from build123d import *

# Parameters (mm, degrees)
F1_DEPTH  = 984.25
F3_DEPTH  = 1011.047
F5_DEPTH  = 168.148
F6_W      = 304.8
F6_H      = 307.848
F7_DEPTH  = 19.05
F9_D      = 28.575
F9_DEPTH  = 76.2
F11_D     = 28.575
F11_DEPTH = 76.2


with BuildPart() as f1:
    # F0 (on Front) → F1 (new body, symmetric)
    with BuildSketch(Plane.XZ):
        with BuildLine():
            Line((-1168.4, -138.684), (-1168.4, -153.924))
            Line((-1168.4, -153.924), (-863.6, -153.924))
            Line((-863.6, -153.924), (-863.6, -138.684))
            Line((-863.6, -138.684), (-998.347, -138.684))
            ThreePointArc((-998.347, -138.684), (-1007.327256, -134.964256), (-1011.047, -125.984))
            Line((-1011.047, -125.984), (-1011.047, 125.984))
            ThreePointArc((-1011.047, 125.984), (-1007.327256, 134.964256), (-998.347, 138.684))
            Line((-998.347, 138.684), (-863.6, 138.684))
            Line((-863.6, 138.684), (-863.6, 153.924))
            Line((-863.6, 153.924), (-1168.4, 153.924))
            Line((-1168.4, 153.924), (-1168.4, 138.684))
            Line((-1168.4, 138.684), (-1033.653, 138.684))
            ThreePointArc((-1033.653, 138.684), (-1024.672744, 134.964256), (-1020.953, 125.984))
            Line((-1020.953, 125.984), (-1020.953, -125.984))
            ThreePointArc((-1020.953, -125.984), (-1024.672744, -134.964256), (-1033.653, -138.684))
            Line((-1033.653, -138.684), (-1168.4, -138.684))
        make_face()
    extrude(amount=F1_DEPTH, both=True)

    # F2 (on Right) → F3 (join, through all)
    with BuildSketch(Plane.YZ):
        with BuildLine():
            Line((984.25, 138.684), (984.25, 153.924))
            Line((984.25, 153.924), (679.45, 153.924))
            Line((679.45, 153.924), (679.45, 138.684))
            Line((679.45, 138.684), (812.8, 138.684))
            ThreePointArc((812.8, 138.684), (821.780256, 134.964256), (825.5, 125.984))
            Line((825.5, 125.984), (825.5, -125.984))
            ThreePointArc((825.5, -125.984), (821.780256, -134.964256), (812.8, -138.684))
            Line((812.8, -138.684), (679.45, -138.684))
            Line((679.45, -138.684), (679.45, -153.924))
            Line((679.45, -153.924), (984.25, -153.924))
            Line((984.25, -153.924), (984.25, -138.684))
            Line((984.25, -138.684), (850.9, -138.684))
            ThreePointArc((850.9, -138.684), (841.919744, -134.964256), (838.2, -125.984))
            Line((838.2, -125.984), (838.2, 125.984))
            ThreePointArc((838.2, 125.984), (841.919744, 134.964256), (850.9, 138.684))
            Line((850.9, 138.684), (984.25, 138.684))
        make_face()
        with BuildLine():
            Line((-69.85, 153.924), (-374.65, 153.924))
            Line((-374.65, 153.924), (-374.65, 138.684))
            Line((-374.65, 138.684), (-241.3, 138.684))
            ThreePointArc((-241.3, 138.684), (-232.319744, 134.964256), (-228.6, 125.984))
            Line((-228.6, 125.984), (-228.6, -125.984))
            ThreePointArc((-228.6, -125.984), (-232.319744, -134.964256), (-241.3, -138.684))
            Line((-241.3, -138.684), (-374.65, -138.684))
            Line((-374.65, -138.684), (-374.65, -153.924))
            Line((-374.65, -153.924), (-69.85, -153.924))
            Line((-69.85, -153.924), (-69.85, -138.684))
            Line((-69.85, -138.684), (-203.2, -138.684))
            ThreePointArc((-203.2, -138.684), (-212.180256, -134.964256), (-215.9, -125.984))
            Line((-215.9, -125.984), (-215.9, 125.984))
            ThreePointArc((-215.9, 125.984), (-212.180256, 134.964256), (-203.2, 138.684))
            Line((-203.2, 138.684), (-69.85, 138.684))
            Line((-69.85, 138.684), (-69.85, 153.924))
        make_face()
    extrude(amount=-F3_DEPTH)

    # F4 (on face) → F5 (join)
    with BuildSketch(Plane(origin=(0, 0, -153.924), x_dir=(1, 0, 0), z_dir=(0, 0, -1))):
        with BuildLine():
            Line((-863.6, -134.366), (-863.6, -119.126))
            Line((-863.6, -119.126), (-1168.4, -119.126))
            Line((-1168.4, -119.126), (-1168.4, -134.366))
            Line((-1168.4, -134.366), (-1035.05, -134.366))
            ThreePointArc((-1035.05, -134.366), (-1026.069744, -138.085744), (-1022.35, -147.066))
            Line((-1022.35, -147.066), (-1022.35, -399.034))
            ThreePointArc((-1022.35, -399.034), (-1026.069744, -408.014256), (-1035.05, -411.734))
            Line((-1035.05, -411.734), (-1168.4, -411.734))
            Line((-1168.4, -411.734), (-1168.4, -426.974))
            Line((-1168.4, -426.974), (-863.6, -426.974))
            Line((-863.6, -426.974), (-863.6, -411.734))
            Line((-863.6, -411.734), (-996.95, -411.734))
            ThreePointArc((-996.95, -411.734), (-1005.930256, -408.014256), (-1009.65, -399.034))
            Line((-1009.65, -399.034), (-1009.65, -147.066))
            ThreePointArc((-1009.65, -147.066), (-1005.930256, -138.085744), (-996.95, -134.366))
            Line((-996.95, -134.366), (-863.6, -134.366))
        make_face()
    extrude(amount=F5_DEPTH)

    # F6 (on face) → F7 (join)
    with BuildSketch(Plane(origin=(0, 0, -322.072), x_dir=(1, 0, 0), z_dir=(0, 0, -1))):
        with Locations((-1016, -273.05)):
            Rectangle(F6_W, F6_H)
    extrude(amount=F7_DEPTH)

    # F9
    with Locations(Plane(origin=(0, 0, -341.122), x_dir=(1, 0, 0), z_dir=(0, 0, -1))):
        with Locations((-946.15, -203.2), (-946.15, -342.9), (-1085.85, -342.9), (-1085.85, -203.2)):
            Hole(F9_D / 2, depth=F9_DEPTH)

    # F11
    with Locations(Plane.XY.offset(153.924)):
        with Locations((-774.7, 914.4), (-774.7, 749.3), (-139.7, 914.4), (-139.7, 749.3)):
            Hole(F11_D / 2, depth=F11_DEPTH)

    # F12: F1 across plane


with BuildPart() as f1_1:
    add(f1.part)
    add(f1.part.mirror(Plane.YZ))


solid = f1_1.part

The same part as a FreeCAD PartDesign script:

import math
import FreeCAD as App
import Part
import Sketcher
from FreeCAD import Vector
Q = App.Units.Quantity


def add_polygon(sketch, points):
    """Adds a closed chain of lines whose ends are joined by coincident constraints."""
    first, n = sketch.GeometryCount, len(points)
    for a, b in zip(points, points[1:] + points[:1]):
        sketch.addGeometry(Part.LineSegment(App.Vector(*a, 0), App.Vector(*b, 0)), False)
    for i in range(n):
        sketch.addConstraint(Sketcher.Constraint("Coincident", first + i, 2, first + (i + 1) % n, 1))

doc = App.newDocument("Part")
body = doc.addObject("PartDesign::Body", "Body")

sketch1 = doc.addObject("Sketcher::SketchObject", "Sketch")
body.addObject(sketch1)
sketch1.AttachmentSupport = (doc.XZ_Plane, [""])
sketch1.MapMode = "FlatFace"
sketch1.addGeometry(Part.LineSegment(Vector(-1168, -139, 0), Vector(-1168, -154, 0)), False)
sketch1.addGeometry(Part.LineSegment(Vector(-1168, -154, 0), Vector(-864, -154, 0)), False)
sketch1.addGeometry(Part.LineSegment(Vector(-864, -154, 0), Vector(-864, -139, 0)), False)
sketch1.addGeometry(Part.LineSegment(Vector(-864, -139, 0), Vector(-998, -139, 0)), False)
sketch1.addGeometry(Part.ArcOfCircle(Part.Circle(Vector(-998, -126, 0), Vector(0, 0, 1), 13), math.radians(-180), math.radians(-90)), False)
sketch1.addGeometry(Part.LineSegment(Vector(-1011, -126, 0), Vector(-1011, 126, 0)), False)
sketch1.addGeometry(Part.ArcOfCircle(Part.Circle(Vector(-998, 126, 0), Vector(0, 0, 1), 13), math.radians(90), math.radians(180)), False)
sketch1.addGeometry(Part.LineSegment(Vector(-998, 139, 0), Vector(-864, 139, 0)), False)
sketch1.addGeometry(Part.LineSegment(Vector(-864, 139, 0), Vector(-864, 154, 0)), False)
sketch1.addGeometry(Part.LineSegment(Vector(-864, 154, 0), Vector(-1168, 154, 0)), False)
sketch1.addGeometry(Part.LineSegment(Vector(-1168, 154, 0), Vector(-1168, 139, 0)), False)
sketch1.addGeometry(Part.LineSegment(Vector(-1168, 139, 0), Vector(-1034, 139, 0)), False)
sketch1.addGeometry(Part.ArcOfCircle(Part.Circle(Vector(-1034, 126, 0), Vector(0, 0, 1), 13), math.radians(0), math.radians(90)), False)
sketch1.addGeometry(Part.LineSegment(Vector(-1021, 126, 0), Vector(-1021, -126, 0)), False)
sketch1.addGeometry(Part.ArcOfCircle(Part.Circle(Vector(-1034, -126, 0), Vector(0, 0, 1), 13), math.radians(-90), math.radians(0)), False)
sketch1.addGeometry(Part.LineSegment(Vector(-1034, -139, 0), Vector(-1168, -139, 0)), False)
sketch1.addConstraint(Sketcher.Constraint("Coincident", 0, 2, 1, 1))
sketch1.addConstraint(Sketcher.Constraint("Coincident", 1, 2, 2, 1))
sketch1.addConstraint(Sketcher.Constraint("Coincident", 2, 2, 3, 1))
sketch1.addConstraint(Sketcher.Constraint("Tangent", 3, 2, 4, 2))
sketch1.addConstraint(Sketcher.Constraint("Tangent", 4, 1, 5, 1))
sketch1.addConstraint(Sketcher.Constraint("Tangent", 5, 2, 6, 2))
sketch1.addConstraint(Sketcher.Constraint("Tangent", 6, 1, 7, 1))
sketch1.addConstraint(Sketcher.Constraint("Coincident", 7, 2, 8, 1))
sketch1.addConstraint(Sketcher.Constraint("Coincident", 8, 2, 9, 1))
sketch1.addConstraint(Sketcher.Constraint("Coincident", 9, 2, 10, 1))
sketch1.addConstraint(Sketcher.Constraint("Coincident", 10, 2, 11, 1))
sketch1.addConstraint(Sketcher.Constraint("Tangent", 11, 2, 12, 2))
sketch1.addConstraint(Sketcher.Constraint("Tangent", 12, 1, 13, 1))
sketch1.addConstraint(Sketcher.Constraint("Tangent", 13, 2, 14, 2))
sketch1.addConstraint(Sketcher.Constraint("Tangent", 14, 1, 15, 1))
sketch1.addConstraint(Sketcher.Constraint("Coincident", 15, 2, 0, 1))
sketch1.addConstraint(Sketcher.Constraint("Vertical", 0))
sketch1.addConstraint(Sketcher.Constraint("Horizontal", 1))
sketch1.addConstraint(Sketcher.Constraint("Vertical", 2))
sketch1.addConstraint(Sketcher.Constraint("Horizontal", 3))
sketch1.addConstraint(Sketcher.Constraint("Vertical", 5))
sketch1.addConstraint(Sketcher.Constraint("Horizontal", 7))
sketch1.addConstraint(Sketcher.Constraint("Vertical", 8))
sketch1.addConstraint(Sketcher.Constraint("Horizontal", 9))
sketch1.addConstraint(Sketcher.Constraint("Vertical", 10))
sketch1.addConstraint(Sketcher.Constraint("Horizontal", 11))
sketch1.addConstraint(Sketcher.Constraint("Vertical", 13))
sketch1.addConstraint(Sketcher.Constraint("Horizontal", 15))
sketch1.addConstraint(Sketcher.Constraint("Equal", 4, 6))
sketch1.addConstraint(Sketcher.Constraint("Equal", 6, 12))
sketch1.addConstraint(Sketcher.Constraint("Equal", 12, 14))
sketch1.addConstraint(Sketcher.Constraint("Symmetric", 2, 2, 7, 2, -1))
sketch1.addConstraint(Sketcher.Constraint("Symmetric", 0, 2, 9, 2, -1))
sketch1.addConstraint(Sketcher.Constraint("Horizontal", 6, 3, 12, 3))
sketch1.addConstraint(Sketcher.Constraint("Horizontal", 4, 3, 14, 3))
sketch1.addConstraint(Sketcher.Constraint("Equal", 7, 11))
sketch1.addConstraint(Sketcher.Constraint("Radius", 4, Q("0.5 in")))
sketch1.addConstraint(Sketcher.Constraint("DistanceX", 1, 1, 1, 2, Q("12 in")))
sketch1.addConstraint(Sketcher.Constraint("DistanceY", 0, 2, 0, 1, Q("0.6 in")))
sketch1.addConstraint(Sketcher.Constraint("DistanceX", 0, 2, -1, 1, Q("46 in")))
sketch1.addConstraint(Sketcher.Constraint("DistanceY", 5, 1, 5, 2, Q("9.92 in")))
sketch1.addConstraint(Sketcher.Constraint("DistanceX", 3, 2, 3, 1, Q("5.305 in")))
pad1 = doc.addObject("PartDesign::Pad", "Pad")
body.addObject(pad1)
pad1.Profile = sketch1
pad1.Length = Q("77.5 in")
pad1.Midplane = True

sketch2 = doc.addObject("Sketcher::SketchObject", "Sketch001")
body.addObject(sketch2)
sketch2.AttachmentSupport = (doc.YZ_Plane, [""])
sketch2.MapMode = "FlatFace"
sketch2.addGeometry(Part.LineSegment(Vector(984, 139, 0), Vector(984, 154, 0)), False)
sketch2.addGeometry(Part.LineSegment(Vector(984, 154, 0), Vector(679, 154, 0)), False)
sketch2.addGeometry(Part.LineSegment(Vector(679, 154, 0), Vector(679, 139, 0)), False)
sketch2.addGeometry(Part.LineSegment(Vector(679, 139, 0), Vector(813, 139, 0)), False)
sketch2.addGeometry(Part.ArcOfCircle(Part.Circle(Vector(813, 126, 0), Vector(0, 0, 1), 13), math.radians(0), math.radians(90)), False)
sketch2.addGeometry(Part.LineSegment(Vector(826, 126, 0), Vector(826, -126, 0)), False)
sketch2.addGeometry(Part.ArcOfCircle(Part.Circle(Vector(813, -126, 0), Vector(0, 0, 1), 13), math.radians(-90), math.radians(0)), False)
sketch2.addGeometry(Part.LineSegment(Vector(813, -139, 0), Vector(679, -139, 0)), False)
sketch2.addGeometry(Part.LineSegment(Vector(679, -139, 0), Vector(679, -154, 0)), False)
sketch2.addGeometry(Part.LineSegment(Vector(679, -154, 0), Vector(984, -154, 0)), False)
sketch2.addGeometry(Part.LineSegment(Vector(984, -154, 0), Vector(984, -139, 0)), False)
sketch2.addGeometry(Part.LineSegment(Vector(984, -139, 0), Vector(851, -139, 0)), False)
sketch2.addGeometry(Part.ArcOfCircle(Part.Circle(Vector(851, -126, 0), Vector(0, 0, 1), 13), math.radians(-180), math.radians(-90)), False)
sketch2.addGeometry(Part.LineSegment(Vector(838, -126, 0), Vector(838, 126, 0)), False)
sketch2.addGeometry(Part.ArcOfCircle(Part.Circle(Vector(851, 126, 0), Vector(0, 0, 1), 13), math.radians(90), math.radians(180)), False)
sketch2.addGeometry(Part.LineSegment(Vector(851, 139, 0), Vector(984, 139, 0)), False)
sketch2.addGeometry(Part.LineSegment(Vector(-70, 154, 0), Vector(-375, 154, 0)), False)
sketch2.addGeometry(Part.LineSegment(Vector(-375, 154, 0), Vector(-375, 139, 0)), False)
sketch2.addGeometry(Part.LineSegment(Vector(-375, 139, 0), Vector(-241, 139, 0)), False)
sketch2.addGeometry(Part.ArcOfCircle(Part.Circle(Vector(-241, 126, 0), Vector(0, 0, 1), 13), math.radians(0), math.radians(90)), False)
sketch2.addGeometry(Part.LineSegment(Vector(-229, 126, 0), Vector(-229, -126, 0)), False)
sketch2.addGeometry(Part.ArcOfCircle(Part.Circle(Vector(-241, -126, 0), Vector(0, 0, 1), 13), math.radians(-90), math.radians(0)), False)
sketch2.addGeometry(Part.LineSegment(Vector(-241, -139, 0), Vector(-375, -139, 0)), False)
sketch2.addGeometry(Part.LineSegment(Vector(-375, -139, 0), Vector(-375, -154, 0)), False)
sketch2.addGeometry(Part.LineSegment(Vector(-375, -154, 0), Vector(-70, -154, 0)), False)
sketch2.addGeometry(Part.LineSegment(Vector(-70, -154, 0), Vector(-70, -139, 0)), False)
sketch2.addGeometry(Part.LineSegment(Vector(-70, -139, 0), Vector(-203, -139, 0)), False)
sketch2.addGeometry(Part.ArcOfCircle(Part.Circle(Vector(-203, -126, 0), Vector(0, 0, 1), 13), math.radians(-180), math.radians(-90)), False)
sketch2.addGeometry(Part.LineSegment(Vector(-216, -126, 0), Vector(-216, 126, 0)), False)
sketch2.addGeometry(Part.ArcOfCircle(Part.Circle(Vector(-203, 126, 0), Vector(0, 0, 1), 13), math.radians(90), math.radians(180)), False)
sketch2.addGeometry(Part.LineSegment(Vector(-203, 139, 0), Vector(-70, 139, 0)), False)
sketch2.addGeometry(Part.LineSegment(Vector(-70, 139, 0), Vector(-70, 154, 0)), False)
sketch2.addConstraint(Sketcher.Constraint("Coincident", 0, 2, 1, 1))
sketch2.addConstraint(Sketcher.Constraint("Coincident", 1, 2, 2, 1))
sketch2.addConstraint(Sketcher.Constraint("Coincident", 2, 2, 3, 1))
sketch2.addConstraint(Sketcher.Constraint("Tangent", 3, 2, 4, 2))
sketch2.addConstraint(Sketcher.Constraint("Tangent", 4, 1, 5, 1))
sketch2.addConstraint(Sketcher.Constraint("Tangent", 5, 2, 6, 2))
sketch2.addConstraint(Sketcher.Constraint("Tangent", 6, 1, 7, 1))
sketch2.addConstraint(Sketcher.Constraint("Coincident", 7, 2, 8, 1))
sketch2.addConstraint(Sketcher.Constraint("Coincident", 8, 2, 9, 1))
sketch2.addConstraint(Sketcher.Constraint("Coincident", 9, 2, 10, 1))
sketch2.addConstraint(Sketcher.Constraint("Coincident", 10, 2, 11, 1))
sketch2.addConstraint(Sketcher.Constraint("Tangent", 11, 2, 12, 2))
sketch2.addConstraint(Sketcher.Constraint("Tangent", 12, 1, 13, 1))
sketch2.addConstraint(Sketcher.Constraint("Tangent", 13, 2, 14, 2))
sketch2.addConstraint(Sketcher.Constraint("Tangent", 14, 1, 15, 1))
sketch2.addConstraint(Sketcher.Constraint("Coincident", 15, 2, 0, 1))
sketch2.addConstraint(Sketcher.Constraint("Coincident", 16, 2, 17, 1))
sketch2.addConstraint(Sketcher.Constraint("Coincident", 17, 2, 18, 1))
sketch2.addConstraint(Sketcher.Constraint("Tangent", 18, 2, 19, 2))
sketch2.addConstraint(Sketcher.Constraint("Tangent", 19, 1, 20, 1))
sketch2.addConstraint(Sketcher.Constraint("Tangent", 20, 2, 21, 2))
sketch2.addConstraint(Sketcher.Constraint("Tangent", 21, 1, 22, 1))
sketch2.addConstraint(Sketcher.Constraint("Coincident", 22, 2, 23, 1))
sketch2.addConstraint(Sketcher.Constraint("Coincident", 23, 2, 24, 1))
sketch2.addConstraint(Sketcher.Constraint("Coincident", 24, 2, 25, 1))
sketch2.addConstraint(Sketcher.Constraint("Coincident", 25, 2, 26, 1))
sketch2.addConstraint(Sketcher.Constraint("Tangent", 26, 2, 27, 2))
sketch2.addConstraint(Sketcher.Constraint("Tangent", 27, 1, 28, 1))
sketch2.addConstraint(Sketcher.Constraint("Tangent", 28, 2, 29, 2))
sketch2.addConstraint(Sketcher.Constraint("Tangent", 29, 1, 30, 1))
sketch2.addConstraint(Sketcher.Constraint("Coincident", 30, 2, 31, 1))
sketch2.addConstraint(Sketcher.Constraint("Coincident", 31, 2, 16, 1))
sketch2.addConstraint(Sketcher.Constraint("Vertical", 0))
sketch2.addConstraint(Sketcher.Constraint("Horizontal", 1))
sketch2.addConstraint(Sketcher.Constraint("Vertical", 2))
sketch2.addConstraint(Sketcher.Constraint("Horizontal", 3))
sketch2.addConstraint(Sketcher.Constraint("Vertical", 5))
sketch2.addConstraint(Sketcher.Constraint("Horizontal", 7))
sketch2.addConstraint(Sketcher.Constraint("Vertical", 8))
sketch2.addConstraint(Sketcher.Constraint("Horizontal", 9))
sketch2.addConstraint(Sketcher.Constraint("Vertical", 10))
sketch2.addConstraint(Sketcher.Constraint("Horizontal", 11))
sketch2.addConstraint(Sketcher.Constraint("Vertical", 13))
sketch2.addConstraint(Sketcher.Constraint("Horizontal", 15))
sketch2.addConstraint(Sketcher.Constraint("Horizontal", 16))
sketch2.addConstraint(Sketcher.Constraint("Vertical", 17))
sketch2.addConstraint(Sketcher.Constraint("Horizontal", 18))
sketch2.addConstraint(Sketcher.Constraint("Vertical", 20))
sketch2.addConstraint(Sketcher.Constraint("Horizontal", 22))
sketch2.addConstraint(Sketcher.Constraint("Vertical", 23))
sketch2.addConstraint(Sketcher.Constraint("Horizontal", 24))
sketch2.addConstraint(Sketcher.Constraint("Vertical", 25))
sketch2.addConstraint(Sketcher.Constraint("Horizontal", 26))
sketch2.addConstraint(Sketcher.Constraint("Vertical", 28))
sketch2.addConstraint(Sketcher.Constraint("Horizontal", 30))
sketch2.addConstraint(Sketcher.Constraint("Vertical", 31))
sketch2.addConstraint(Sketcher.Constraint("Equal", 4, 6))
sketch2.addConstraint(Sketcher.Constraint("Equal", 6, 12))
sketch2.addConstraint(Sketcher.Constraint("Equal", 12, 14))
sketch2.addConstraint(Sketcher.Constraint("Equal", 14, 19))
sketch2.addConstraint(Sketcher.Constraint("Equal", 19, 21))
sketch2.addConstraint(Sketcher.Constraint("Equal", 21, 27))
sketch2.addConstraint(Sketcher.Constraint("Equal", 27, 29))
sketch2.addConstraint(Sketcher.Constraint("Symmetric", 2, 2, 7, 2, -1))
sketch2.addConstraint(Sketcher.Constraint("Symmetric", 0, 2, 9, 2, -1))
sketch2.addConstraint(Sketcher.Constraint("Symmetric", 17, 2, 22, 2, -1))
sketch2.addConstraint(Sketcher.Constraint("Symmetric", 25, 2, 30, 2, -1))
sketch2.addConstraint(Sketcher.Constraint("Horizontal", 6, 3, 12, 3))
sketch2.addConstraint(Sketcher.Constraint("Horizontal", 4, 3, 14, 3))
sketch2.addConstraint(Sketcher.Constraint("Horizontal", 14, 3, 19, 3))
sketch2.addConstraint(Sketcher.Constraint("Horizontal", 21, 3, 27, 3))
sketch2.addConstraint(Sketcher.Constraint("Horizontal", 1, 2, 16, 2))
sketch2.addConstraint(Sketcher.Constraint("Horizontal", 9, 2, 23, 2))
sketch2.addConstraint(Sketcher.Constraint("Equal", 7, 11))
sketch2.addConstraint(Sketcher.Constraint("Equal", 9, 16))
sketch2.addConstraint(Sketcher.Constraint("Equal", 15, 18))
sketch2.addConstraint(Sketcher.Constraint("Equal", 22, 26))
sketch2.addConstraint(Sketcher.Constraint("Radius", 4, Q("0.5 in")))
sketch2.addConstraint(Sketcher.Constraint("DistanceX", 1, 2, 1, 1, Q("12 in")))
sketch2.addConstraint(Sketcher.Constraint("DistanceY", 0, 1, 0, 2, Q("0.6 in")))
sketch2.addConstraint(Sketcher.Constraint("DistanceX", -1, 1, 4, 3, Q("32 in")))
sketch2.addConstraint(Sketcher.Constraint("DistanceX", 27, 3, -1, 1, Q("8 in")))
sketch2.addConstraint(Sketcher.Constraint("DistanceX", -1, 1, 12, 1, Q("33 in")))
sketch2.addConstraint(Sketcher.Constraint("DistanceY", 5, 2, 5, 1, Q("9.92 in")))
pad2 = doc.addObject("PartDesign::Pad", "Pad001")
body.addObject(pad2)
pad2.Profile = sketch2
pad2.Type = "UpToLast"
pad2.Reversed = True

sketch3 = doc.addObject("Sketcher::SketchObject", "Sketch002")
body.addObject(sketch3)
sketch3.AttachmentSupport = (doc.XY_Plane, [""])
sketch3.MapMode = "FlatFace"
sketch3.AttachmentOffset = App.Placement(Vector(0, 0, -6.06 * 25.4), App.Rotation())
sketch3.addGeometry(Part.LineSegment(Vector(-864, 134, 0), Vector(-864, 119, 0)), False)
sketch3.addGeometry(Part.LineSegment(Vector(-864, 119, 0), Vector(-1168, 119, 0)), False)
sketch3.addGeometry(Part.LineSegment(Vector(-1168, 119, 0), Vector(-1168, 134, 0)), False)
sketch3.addGeometry(Part.LineSegment(Vector(-1168, 134, 0), Vector(-1035, 134, 0)), False)
sketch3.addGeometry(Part.ArcOfCircle(Part.Circle(Vector(-1035, 147, 0), Vector(0, 0, 1), 13), math.radians(-90), math.radians(0)), False)
sketch3.addGeometry(Part.LineSegment(Vector(-1022, 147, 0), Vector(-1022, 399, 0)), False)
sketch3.addGeometry(Part.ArcOfCircle(Part.Circle(Vector(-1035, 399, 0), Vector(0, 0, 1), 13), math.radians(0), math.radians(90)), False)
sketch3.addGeometry(Part.LineSegment(Vector(-1035, 412, 0), Vector(-1168, 412, 0)), False)
sketch3.addGeometry(Part.LineSegment(Vector(-1168, 412, 0), Vector(-1168, 427, 0)), False)
sketch3.addGeometry(Part.LineSegment(Vector(-1168, 427, 0), Vector(-864, 427, 0)), False)
sketch3.addGeometry(Part.LineSegment(Vector(-864, 427, 0), Vector(-864, 412, 0)), False)
sketch3.addGeometry(Part.LineSegment(Vector(-864, 412, 0), Vector(-997, 412, 0)), False)
sketch3.addGeometry(Part.ArcOfCircle(Part.Circle(Vector(-997, 399, 0), Vector(0, 0, 1), 13), math.radians(90), math.radians(180)), False)
sketch3.addGeometry(Part.LineSegment(Vector(-1010, 399, 0), Vector(-1010, 147, 0)), False)
sketch3.addGeometry(Part.ArcOfCircle(Part.Circle(Vector(-997, 147, 0), Vector(0, 0, 1), 13), math.radians(-180), math.radians(-90)), False)
sketch3.addGeometry(Part.LineSegment(Vector(-997, 134, 0), Vector(-864, 134, 0)), False)
sketch3.addConstraint(Sketcher.Constraint("Coincident", 0, 2, 1, 1))
sketch3.addConstraint(Sketcher.Constraint("Coincident", 1, 2, 2, 1))
sketch3.addConstraint(Sketcher.Constraint("Coincident", 2, 2, 3, 1))
sketch3.addConstraint(Sketcher.Constraint("Tangent", 3, 2, 4, 1))
sketch3.addConstraint(Sketcher.Constraint("Tangent", 4, 2, 5, 1))
sketch3.addConstraint(Sketcher.Constraint("Tangent", 5, 2, 6, 1))
sketch3.addConstraint(Sketcher.Constraint("Tangent", 6, 2, 7, 1))
sketch3.addConstraint(Sketcher.Constraint("Coincident", 7, 2, 8, 1))
sketch3.addConstraint(Sketcher.Constraint("Coincident", 8, 2, 9, 1))
sketch3.addConstraint(Sketcher.Constraint("Coincident", 9, 2, 10, 1))
sketch3.addConstraint(Sketcher.Constraint("Coincident", 10, 2, 11, 1))
sketch3.addConstraint(Sketcher.Constraint("Tangent", 11, 2, 12, 1))
sketch3.addConstraint(Sketcher.Constraint("Tangent", 12, 2, 13, 1))
sketch3.addConstraint(Sketcher.Constraint("Tangent", 13, 2, 14, 1))
sketch3.addConstraint(Sketcher.Constraint("Tangent", 14, 2, 15, 1))
sketch3.addConstraint(Sketcher.Constraint("Coincident", 15, 2, 0, 1))
sketch3.addConstraint(Sketcher.Constraint("Vertical", 0))
sketch3.addConstraint(Sketcher.Constraint("Horizontal", 1))
sketch3.addConstraint(Sketcher.Constraint("Vertical", 2))
sketch3.addConstraint(Sketcher.Constraint("Horizontal", 3))
sketch3.addConstraint(Sketcher.Constraint("Vertical", 5))
sketch3.addConstraint(Sketcher.Constraint("Horizontal", 7))
sketch3.addConstraint(Sketcher.Constraint("Vertical", 8))
sketch3.addConstraint(Sketcher.Constraint("Horizontal", 9))
sketch3.addConstraint(Sketcher.Constraint("Vertical", 10))
sketch3.addConstraint(Sketcher.Constraint("Horizontal", 11))
sketch3.addConstraint(Sketcher.Constraint("Vertical", 13))
sketch3.addConstraint(Sketcher.Constraint("Horizontal", 15))
sketch3.addConstraint(Sketcher.Constraint("Equal", 4, 6))
sketch3.addConstraint(Sketcher.Constraint("Equal", 6, 12))
sketch3.addConstraint(Sketcher.Constraint("Equal", 12, 14))
sketch3.addConstraint(Sketcher.Constraint("Horizontal", 6, 3, 12, 3))
sketch3.addConstraint(Sketcher.Constraint("Horizontal", 4, 3, 14, 3))
sketch3.addConstraint(Sketcher.Constraint("Vertical", 2, 2, 7, 2))
sketch3.addConstraint(Sketcher.Constraint("Vertical", 0, 2, 9, 2))
sketch3.addConstraint(Sketcher.Constraint("Equal", 7, 11))
sketch3.addConstraint(Sketcher.Constraint("Equal", 2, 8))
sketch3.addConstraint(Sketcher.Constraint("Radius", 4, Q("0.5 in")))
sketch3.addConstraint(Sketcher.Constraint("DistanceX", 1, 2, 1, 1, Q("12 in")))
sketch3.addConstraint(Sketcher.Constraint("DistanceY", 0, 2, 0, 1, Q("0.6 in")))
sketch3.addConstraint(Sketcher.Constraint("DistanceX", 0, 2, -1, 1, Q("34 in")))
sketch3.addConstraint(Sketcher.Constraint("DistanceX", 4, 2, 14, 3, Q("1 in")))
sketch3.addConstraint(Sketcher.Constraint("DistanceY", 5, 1, 5, 2, Q("9.92 in")))
sketch3.addConstraint(Sketcher.Constraint("DistanceY", -1, 1, 4, 3, Q("5.79 in")))
pad3 = doc.addObject("PartDesign::Pad", "Pad002")
body.addObject(pad3)
pad3.Profile = sketch3
pad3.Length = Q("6.62 in")
pad3.Reversed = True

sketch4 = doc.addObject("Sketcher::SketchObject", "Sketch003")
body.addObject(sketch4)
sketch4.AttachmentSupport = (doc.XY_Plane, [""])
sketch4.MapMode = "FlatFace"
sketch4.AttachmentOffset = App.Placement(Vector(0, 0, -12.68 * 25.4), App.Rotation())
add_polygon(sketch4, [(-1168, 119), (-1168, 427), (-864, 427), (-864, 119)])
sketch4.addConstraint(Sketcher.Constraint("Vertical", 0))
sketch4.addConstraint(Sketcher.Constraint("Horizontal", 1))
sketch4.addConstraint(Sketcher.Constraint("Vertical", 2))
sketch4.addConstraint(Sketcher.Constraint("Horizontal", 3))
sketch4.addConstraint(Sketcher.Constraint("DistanceX", 1, 1, 1, 2, Q("12 in")))
sketch4.addConstraint(Sketcher.Constraint("DistanceX", 0, 2, -1, 1, Q("46 in")))
sketch4.addConstraint(Sketcher.Constraint("DistanceY", 0, 1, 0, 2, Q("12.12 in")))
sketch4.addConstraint(Sketcher.Constraint("DistanceY", -1, 1, 0, 2, Q("16.81 in")))
pad4 = doc.addObject("PartDesign::Pad", "Pad003")
body.addObject(pad4)
pad4.Profile = sketch4
pad4.Length = Q("0.75 in")
pad4.Reversed = True

sketch5 = doc.addObject("Sketcher::SketchObject", "Sketch004")
body.addObject(sketch5)
sketch5.AttachmentSupport = (doc.XY_Plane, [""])
sketch5.MapMode = "FlatFace"
sketch5.AttachmentOffset = App.Placement(Vector(0, 0, -13.43 * 25.4), App.Rotation())
sketch5.addGeometry(Part.Circle(Vector(-946, 203, 0), Vector(0, 0, 1), 14), False)
sketch5.addGeometry(Part.Circle(Vector(-946, 343, 0), Vector(0, 0, 1), 14), False)
sketch5.addGeometry(Part.Circle(Vector(-1086, 343, 0), Vector(0, 0, 1), 14), False)
sketch5.addGeometry(Part.Circle(Vector(-1086, 203, 0), Vector(0, 0, 1), 14), False)
sketch5.addConstraint(Sketcher.Constraint("Equal", 0, 1))
sketch5.addConstraint(Sketcher.Constraint("Equal", 1, 2))
sketch5.addConstraint(Sketcher.Constraint("Equal", 2, 3))
sketch5.addConstraint(Sketcher.Constraint("Horizontal", 1, 3, 2, 3))
sketch5.addConstraint(Sketcher.Constraint("Horizontal", 0, 3, 3, 3))
sketch5.addConstraint(Sketcher.Constraint("Vertical", 0, 3, 1, 3))
sketch5.addConstraint(Sketcher.Constraint("Vertical", 2, 3, 3, 3))
sketch5.addConstraint(Sketcher.Constraint("Diameter", 0, Q("1.125 in")))
sketch5.addConstraint(Sketcher.Constraint("DistanceY", -1, 1, 0, 3, Q("8 in")))
sketch5.addConstraint(Sketcher.Constraint("DistanceY", -1, 1, 1, 3, Q("13.5 in")))
sketch5.addConstraint(Sketcher.Constraint("DistanceX", 2, 3, 1, 3, Q("5.5 in")))
sketch5.addConstraint(Sketcher.Constraint("DistanceX", 0, 3, -1, 1, Q("37.25 in")))
doc.recompute()
hole = doc.addObject("PartDesign::Hole", "Hole")
body.addObject(hole)
hole.Profile = sketch5
hole.ThreadType = "None"
hole.Diameter = Q("1.125 in")
hole.DepthType = "Dimension"
hole.Depth = Q("3 in")
hole.DrillPoint = "Flat"
hole.Reversed = True

sketch6 = doc.addObject("Sketcher::SketchObject", "Sketch005")
body.addObject(sketch6)
sketch6.AttachmentSupport = (doc.XY_Plane, [""])
sketch6.MapMode = "FlatFace"
sketch6.AttachmentOffset = App.Placement(Vector(0, 0, 6.06 * 25.4), App.Rotation())
sketch6.addGeometry(Part.Circle(Vector(-775, 914, 0), Vector(0, 0, 1), 14), False)
sketch6.addGeometry(Part.Circle(Vector(-775, 749, 0), Vector(0, 0, 1), 14), False)
sketch6.addGeometry(Part.Circle(Vector(-140, 914, 0), Vector(0, 0, 1), 14), False)
sketch6.addGeometry(Part.Circle(Vector(-140, 749, 0), Vector(0, 0, 1), 14), False)
sketch6.addConstraint(Sketcher.Constraint("Equal", 0, 1))
sketch6.addConstraint(Sketcher.Constraint("Equal", 1, 2))
sketch6.addConstraint(Sketcher.Constraint("Equal", 2, 3))
sketch6.addConstraint(Sketcher.Constraint("Horizontal", 0, 3, 2, 3))
sketch6.addConstraint(Sketcher.Constraint("Horizontal", 1, 3, 3, 3))
sketch6.addConstraint(Sketcher.Constraint("Vertical", 0, 3, 1, 3))
sketch6.addConstraint(Sketcher.Constraint("Vertical", 2, 3, 3, 3))
sketch6.addConstraint(Sketcher.Constraint("Diameter", 0, Q("1.125 in")))
sketch6.addConstraint(Sketcher.Constraint("DistanceY", -1, 1, 0, 3, Q("36 in")))
sketch6.addConstraint(Sketcher.Constraint("DistanceX", 0, 3, 2, 3, Q("25 in")))
sketch6.addConstraint(Sketcher.Constraint("DistanceX", 0, 3, -1, 1, Q("30.5 in")))
sketch6.addConstraint(Sketcher.Constraint("DistanceY", -1, 1, 1, 3, Q("29.5 in")))
doc.recompute()
hole2 = doc.addObject("PartDesign::Hole", "Hole001")
body.addObject(hole2)
hole2.Profile = sketch6
hole2.ThreadType = "None"
hole2.Diameter = Q("1.125 in")
hole2.DepthType = "Dimension"
hole2.Depth = Q("3 in")
hole2.DrillPoint = "Flat"
body2 = doc.addObject("PartDesign::Body", "Body001")
doc.recompute()

body2.BaseFeature = body
doc.recompute()

mirroring = doc.addObject("Part::Mirroring", "Mirroring")
mirroring.Source = body
mirroring.Base = Vector(0, 0, 0)
mirroring.Normal = Vector(1, 0, 0)
body3 = doc.addObject("PartDesign::Body", "Body002")
body3.BaseFeature = mirroring
boolean = doc.addObject("PartDesign::Boolean", "Boolean")
body2.addObject(boolean)
boolean.Type = "Fuse"
boolean.addObjects([body3])
doc.recompute()
mirroring.Visibility = False

doc.recompute()
